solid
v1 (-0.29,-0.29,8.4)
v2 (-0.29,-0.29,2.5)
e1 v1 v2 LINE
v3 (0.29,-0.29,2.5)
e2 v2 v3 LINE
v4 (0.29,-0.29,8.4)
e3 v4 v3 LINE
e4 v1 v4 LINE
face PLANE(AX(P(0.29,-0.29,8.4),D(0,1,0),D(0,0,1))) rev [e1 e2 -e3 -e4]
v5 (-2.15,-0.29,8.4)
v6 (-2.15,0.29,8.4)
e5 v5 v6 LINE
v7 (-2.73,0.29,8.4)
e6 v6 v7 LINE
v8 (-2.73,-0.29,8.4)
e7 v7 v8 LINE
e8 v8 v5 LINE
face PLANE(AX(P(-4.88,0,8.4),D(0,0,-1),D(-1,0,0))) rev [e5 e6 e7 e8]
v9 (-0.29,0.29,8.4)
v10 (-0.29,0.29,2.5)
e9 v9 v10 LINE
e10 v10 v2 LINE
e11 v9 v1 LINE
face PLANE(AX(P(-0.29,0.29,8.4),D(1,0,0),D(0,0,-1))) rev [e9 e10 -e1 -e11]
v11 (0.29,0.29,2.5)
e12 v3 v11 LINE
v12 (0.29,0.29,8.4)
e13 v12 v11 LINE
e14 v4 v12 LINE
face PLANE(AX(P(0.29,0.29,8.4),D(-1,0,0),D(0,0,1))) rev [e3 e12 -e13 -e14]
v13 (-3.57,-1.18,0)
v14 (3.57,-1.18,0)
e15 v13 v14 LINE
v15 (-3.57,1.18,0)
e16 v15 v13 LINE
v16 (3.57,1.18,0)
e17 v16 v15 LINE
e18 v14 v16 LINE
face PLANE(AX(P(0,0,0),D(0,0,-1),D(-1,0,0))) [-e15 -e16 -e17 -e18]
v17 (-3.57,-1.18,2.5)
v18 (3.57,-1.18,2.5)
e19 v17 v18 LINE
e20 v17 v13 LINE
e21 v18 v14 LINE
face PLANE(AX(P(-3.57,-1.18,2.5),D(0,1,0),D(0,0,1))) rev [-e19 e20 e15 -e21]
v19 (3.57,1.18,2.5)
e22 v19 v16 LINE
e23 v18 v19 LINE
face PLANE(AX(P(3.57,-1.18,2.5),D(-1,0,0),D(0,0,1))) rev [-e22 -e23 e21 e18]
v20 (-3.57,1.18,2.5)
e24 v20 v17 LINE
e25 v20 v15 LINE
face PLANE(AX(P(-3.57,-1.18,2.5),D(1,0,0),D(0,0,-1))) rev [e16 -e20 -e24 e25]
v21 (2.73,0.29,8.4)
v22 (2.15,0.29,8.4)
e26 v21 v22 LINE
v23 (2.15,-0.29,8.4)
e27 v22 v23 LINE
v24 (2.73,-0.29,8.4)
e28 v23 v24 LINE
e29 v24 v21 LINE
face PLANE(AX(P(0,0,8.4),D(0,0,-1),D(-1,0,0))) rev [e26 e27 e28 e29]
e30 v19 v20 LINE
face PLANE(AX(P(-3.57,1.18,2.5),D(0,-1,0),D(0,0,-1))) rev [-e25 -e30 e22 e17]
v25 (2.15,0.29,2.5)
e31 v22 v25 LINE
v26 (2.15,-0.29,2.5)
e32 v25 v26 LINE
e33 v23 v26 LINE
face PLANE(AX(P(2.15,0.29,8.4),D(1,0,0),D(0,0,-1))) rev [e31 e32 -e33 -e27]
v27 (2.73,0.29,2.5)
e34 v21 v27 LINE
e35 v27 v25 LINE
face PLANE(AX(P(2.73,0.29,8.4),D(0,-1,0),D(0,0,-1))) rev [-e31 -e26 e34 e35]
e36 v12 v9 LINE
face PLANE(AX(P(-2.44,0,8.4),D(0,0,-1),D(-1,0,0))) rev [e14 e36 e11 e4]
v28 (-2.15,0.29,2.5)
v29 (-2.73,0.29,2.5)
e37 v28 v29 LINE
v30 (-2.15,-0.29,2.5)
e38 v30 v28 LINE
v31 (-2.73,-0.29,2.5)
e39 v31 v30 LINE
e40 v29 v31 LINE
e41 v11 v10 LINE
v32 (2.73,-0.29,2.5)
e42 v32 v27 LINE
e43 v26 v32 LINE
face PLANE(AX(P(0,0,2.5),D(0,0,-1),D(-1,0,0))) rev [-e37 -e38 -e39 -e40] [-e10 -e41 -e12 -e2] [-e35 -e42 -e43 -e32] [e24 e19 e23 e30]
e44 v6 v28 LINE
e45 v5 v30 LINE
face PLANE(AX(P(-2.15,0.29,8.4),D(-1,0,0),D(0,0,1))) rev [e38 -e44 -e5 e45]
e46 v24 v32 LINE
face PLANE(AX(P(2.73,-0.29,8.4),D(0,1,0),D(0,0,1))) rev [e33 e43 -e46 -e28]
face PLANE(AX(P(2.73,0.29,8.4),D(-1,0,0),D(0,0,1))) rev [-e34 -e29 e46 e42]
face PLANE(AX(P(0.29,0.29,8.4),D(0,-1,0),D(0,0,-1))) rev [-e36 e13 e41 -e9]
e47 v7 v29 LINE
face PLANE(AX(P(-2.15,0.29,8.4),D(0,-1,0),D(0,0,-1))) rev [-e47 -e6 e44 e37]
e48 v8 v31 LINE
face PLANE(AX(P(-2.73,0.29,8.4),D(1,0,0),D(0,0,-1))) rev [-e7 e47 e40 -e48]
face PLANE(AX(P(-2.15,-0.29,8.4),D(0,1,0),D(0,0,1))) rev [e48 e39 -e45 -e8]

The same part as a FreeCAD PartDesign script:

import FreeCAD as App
import Part
import Sketcher

doc = App.newDocument("Part")
params = doc.addObject("Spreadsheet::Sheet", "Params")
for row, (alias, value) in enumerate([
    ("sketch1_width", "7.14 mm"),
    ("sketch1_height", "2.36 mm"),
    ("pad1_length", "2.5 mm"),
    ("sketch2_width", "0.58 mm"),
    ("pad2_length", "5.9 mm"),
    ("linearpattern_pitch", "2.44 mm"),
], start=1):
    params.set(f"A{row}", alias)
    params.set(f"B{row}", "=" + value)
    params.setAlias(f"B{row}", alias)

body = doc.addObject("PartDesign::Body", "Body")

# Sketch on XY plane
sketch1 = body.newObject("Sketcher::SketchObject", "Sketch")
sketch1.AttachmentSupport = (doc.getObject("XY_Plane"), [""])
sketch1.MapMode = "FlatFace"
sketch1.addGeometry([
    Part.LineSegment(App.Vector(-3.57, 1.18, 0), App.Vector(-3.57, -1.18, 0)),
    Part.LineSegment(App.Vector(-3.57, -1.18, 0), App.Vector(3.57, -1.18, 0)),
    Part.LineSegment(App.Vector(3.57, -1.18, 0), App.Vector(3.57, 1.18, 0)),
    Part.LineSegment(App.Vector(3.57, 1.18, 0), App.Vector(-3.57, 1.18, 0)),
], False)
sketch1.addConstraint([
    Sketcher.Constraint("Coincident", 0, 2, 1, 1),
    Sketcher.Constraint("Coincident", 1, 2, 2, 1),
    Sketcher.Constraint("Coincident", 2, 2, 3, 1),
    Sketcher.Constraint("Coincident", 3, 2, 0, 1),
    Sketcher.Constraint("Vertical", 0),
    Sketcher.Constraint("Horizontal", 1),
    Sketcher.Constraint("Vertical", 2),
    Sketcher.Constraint("Horizontal", 3),
    Sketcher.Constraint("Symmetric", 0, 2, 2, 2, -1, 1),
    Sketcher.Constraint("DistanceX", 1, 1, 1, 2, 7.14),
    Sketcher.Constraint("DistanceY", 0, 2, 0, 1, 2.36),
])
sketch1.setExpression("Constraints[9]", "Params.sketch1_width")
sketch1.setExpression("Constraints[10]", "Params.sketch1_height")
pad1 = body.newObject("PartDesign::Pad", "Pad")
pad1.Profile = sketch1
pad1.setExpression("Length", "Params.pad1_length")

# Sketch on XY plane
sketch2 = body.newObject("Sketcher::SketchObject", "Sketch001")
sketch2.AttachmentSupport = (doc.getObject("XY_Plane"), [""])
sketch2.MapMode = "FlatFace"
sketch2.AttachmentOffset = App.Placement(App.Vector(0, 0, 2.5), App.Rotation())
sketch2.addGeometry([
    Part.LineSegment(App.Vector(2.15, 0.29, 0), App.Vector(2.15, -0.29, 0)),
    Part.LineSegment(App.Vector(2.15, -0.29, 0), App.Vector(2.73, -0.29, 0)),
    Part.LineSegment(App.Vector(2.73, -0.29, 0), App.Vector(2.73, 0.29, 0)),
    Part.LineSegment(App.Vector(2.73, 0.29, 0), App.Vector(2.15, 0.29, 0)),
], False)
sketch2.addConstraint([
    Sketcher.Constraint("Coincident", 0, 2, 1, 1),
    Sketcher.Constraint("Coincident", 1, 2, 2, 1),
    Sketcher.Constraint("Coincident", 2, 2, 3, 1),
    Sketcher.Constraint("Coincident", 3, 2, 0, 1),
    Sketcher.Constraint("Vertical", 0),
    Sketcher.Constraint("Horizontal", 1),
    Sketcher.Constraint("Vertical", 2),
    Sketcher.Constraint("Horizontal", 3),
    Sketcher.Constraint("Equal", 3, 0),
    Sketcher.Constraint("DistanceX", 1, 1, 1, 2, 0.58),
    Sketcher.Constraint("DistanceX", -1, 1, 0, 2, 2.15),
    Sketcher.Constraint("DistanceY", 0, 2, -1, 1, 0.29),
])
sketch2.setExpression("Constraints[9]", "Params.sketch2_width")
pad2 = body.newObject("PartDesign::Pad", "Pad001")
pad2.Profile = sketch2
pad2.setExpression("Length", "Params.pad2_length")
doc.recompute()

linearpattern = body.newObject("PartDesign::LinearPattern", "LinearPattern")
linearpattern.Originals = [pad2]
linearpattern.Direction = (doc.getObject("X_Axis"), [""])
linearpattern.Mode = "offset"
linearpattern.setExpression("Offset", "Params.linearpattern_pitch")
linearpattern.Occurrences = 3
linearpattern.Reversed = True
body.Tip = linearpattern

doc.recompute()
